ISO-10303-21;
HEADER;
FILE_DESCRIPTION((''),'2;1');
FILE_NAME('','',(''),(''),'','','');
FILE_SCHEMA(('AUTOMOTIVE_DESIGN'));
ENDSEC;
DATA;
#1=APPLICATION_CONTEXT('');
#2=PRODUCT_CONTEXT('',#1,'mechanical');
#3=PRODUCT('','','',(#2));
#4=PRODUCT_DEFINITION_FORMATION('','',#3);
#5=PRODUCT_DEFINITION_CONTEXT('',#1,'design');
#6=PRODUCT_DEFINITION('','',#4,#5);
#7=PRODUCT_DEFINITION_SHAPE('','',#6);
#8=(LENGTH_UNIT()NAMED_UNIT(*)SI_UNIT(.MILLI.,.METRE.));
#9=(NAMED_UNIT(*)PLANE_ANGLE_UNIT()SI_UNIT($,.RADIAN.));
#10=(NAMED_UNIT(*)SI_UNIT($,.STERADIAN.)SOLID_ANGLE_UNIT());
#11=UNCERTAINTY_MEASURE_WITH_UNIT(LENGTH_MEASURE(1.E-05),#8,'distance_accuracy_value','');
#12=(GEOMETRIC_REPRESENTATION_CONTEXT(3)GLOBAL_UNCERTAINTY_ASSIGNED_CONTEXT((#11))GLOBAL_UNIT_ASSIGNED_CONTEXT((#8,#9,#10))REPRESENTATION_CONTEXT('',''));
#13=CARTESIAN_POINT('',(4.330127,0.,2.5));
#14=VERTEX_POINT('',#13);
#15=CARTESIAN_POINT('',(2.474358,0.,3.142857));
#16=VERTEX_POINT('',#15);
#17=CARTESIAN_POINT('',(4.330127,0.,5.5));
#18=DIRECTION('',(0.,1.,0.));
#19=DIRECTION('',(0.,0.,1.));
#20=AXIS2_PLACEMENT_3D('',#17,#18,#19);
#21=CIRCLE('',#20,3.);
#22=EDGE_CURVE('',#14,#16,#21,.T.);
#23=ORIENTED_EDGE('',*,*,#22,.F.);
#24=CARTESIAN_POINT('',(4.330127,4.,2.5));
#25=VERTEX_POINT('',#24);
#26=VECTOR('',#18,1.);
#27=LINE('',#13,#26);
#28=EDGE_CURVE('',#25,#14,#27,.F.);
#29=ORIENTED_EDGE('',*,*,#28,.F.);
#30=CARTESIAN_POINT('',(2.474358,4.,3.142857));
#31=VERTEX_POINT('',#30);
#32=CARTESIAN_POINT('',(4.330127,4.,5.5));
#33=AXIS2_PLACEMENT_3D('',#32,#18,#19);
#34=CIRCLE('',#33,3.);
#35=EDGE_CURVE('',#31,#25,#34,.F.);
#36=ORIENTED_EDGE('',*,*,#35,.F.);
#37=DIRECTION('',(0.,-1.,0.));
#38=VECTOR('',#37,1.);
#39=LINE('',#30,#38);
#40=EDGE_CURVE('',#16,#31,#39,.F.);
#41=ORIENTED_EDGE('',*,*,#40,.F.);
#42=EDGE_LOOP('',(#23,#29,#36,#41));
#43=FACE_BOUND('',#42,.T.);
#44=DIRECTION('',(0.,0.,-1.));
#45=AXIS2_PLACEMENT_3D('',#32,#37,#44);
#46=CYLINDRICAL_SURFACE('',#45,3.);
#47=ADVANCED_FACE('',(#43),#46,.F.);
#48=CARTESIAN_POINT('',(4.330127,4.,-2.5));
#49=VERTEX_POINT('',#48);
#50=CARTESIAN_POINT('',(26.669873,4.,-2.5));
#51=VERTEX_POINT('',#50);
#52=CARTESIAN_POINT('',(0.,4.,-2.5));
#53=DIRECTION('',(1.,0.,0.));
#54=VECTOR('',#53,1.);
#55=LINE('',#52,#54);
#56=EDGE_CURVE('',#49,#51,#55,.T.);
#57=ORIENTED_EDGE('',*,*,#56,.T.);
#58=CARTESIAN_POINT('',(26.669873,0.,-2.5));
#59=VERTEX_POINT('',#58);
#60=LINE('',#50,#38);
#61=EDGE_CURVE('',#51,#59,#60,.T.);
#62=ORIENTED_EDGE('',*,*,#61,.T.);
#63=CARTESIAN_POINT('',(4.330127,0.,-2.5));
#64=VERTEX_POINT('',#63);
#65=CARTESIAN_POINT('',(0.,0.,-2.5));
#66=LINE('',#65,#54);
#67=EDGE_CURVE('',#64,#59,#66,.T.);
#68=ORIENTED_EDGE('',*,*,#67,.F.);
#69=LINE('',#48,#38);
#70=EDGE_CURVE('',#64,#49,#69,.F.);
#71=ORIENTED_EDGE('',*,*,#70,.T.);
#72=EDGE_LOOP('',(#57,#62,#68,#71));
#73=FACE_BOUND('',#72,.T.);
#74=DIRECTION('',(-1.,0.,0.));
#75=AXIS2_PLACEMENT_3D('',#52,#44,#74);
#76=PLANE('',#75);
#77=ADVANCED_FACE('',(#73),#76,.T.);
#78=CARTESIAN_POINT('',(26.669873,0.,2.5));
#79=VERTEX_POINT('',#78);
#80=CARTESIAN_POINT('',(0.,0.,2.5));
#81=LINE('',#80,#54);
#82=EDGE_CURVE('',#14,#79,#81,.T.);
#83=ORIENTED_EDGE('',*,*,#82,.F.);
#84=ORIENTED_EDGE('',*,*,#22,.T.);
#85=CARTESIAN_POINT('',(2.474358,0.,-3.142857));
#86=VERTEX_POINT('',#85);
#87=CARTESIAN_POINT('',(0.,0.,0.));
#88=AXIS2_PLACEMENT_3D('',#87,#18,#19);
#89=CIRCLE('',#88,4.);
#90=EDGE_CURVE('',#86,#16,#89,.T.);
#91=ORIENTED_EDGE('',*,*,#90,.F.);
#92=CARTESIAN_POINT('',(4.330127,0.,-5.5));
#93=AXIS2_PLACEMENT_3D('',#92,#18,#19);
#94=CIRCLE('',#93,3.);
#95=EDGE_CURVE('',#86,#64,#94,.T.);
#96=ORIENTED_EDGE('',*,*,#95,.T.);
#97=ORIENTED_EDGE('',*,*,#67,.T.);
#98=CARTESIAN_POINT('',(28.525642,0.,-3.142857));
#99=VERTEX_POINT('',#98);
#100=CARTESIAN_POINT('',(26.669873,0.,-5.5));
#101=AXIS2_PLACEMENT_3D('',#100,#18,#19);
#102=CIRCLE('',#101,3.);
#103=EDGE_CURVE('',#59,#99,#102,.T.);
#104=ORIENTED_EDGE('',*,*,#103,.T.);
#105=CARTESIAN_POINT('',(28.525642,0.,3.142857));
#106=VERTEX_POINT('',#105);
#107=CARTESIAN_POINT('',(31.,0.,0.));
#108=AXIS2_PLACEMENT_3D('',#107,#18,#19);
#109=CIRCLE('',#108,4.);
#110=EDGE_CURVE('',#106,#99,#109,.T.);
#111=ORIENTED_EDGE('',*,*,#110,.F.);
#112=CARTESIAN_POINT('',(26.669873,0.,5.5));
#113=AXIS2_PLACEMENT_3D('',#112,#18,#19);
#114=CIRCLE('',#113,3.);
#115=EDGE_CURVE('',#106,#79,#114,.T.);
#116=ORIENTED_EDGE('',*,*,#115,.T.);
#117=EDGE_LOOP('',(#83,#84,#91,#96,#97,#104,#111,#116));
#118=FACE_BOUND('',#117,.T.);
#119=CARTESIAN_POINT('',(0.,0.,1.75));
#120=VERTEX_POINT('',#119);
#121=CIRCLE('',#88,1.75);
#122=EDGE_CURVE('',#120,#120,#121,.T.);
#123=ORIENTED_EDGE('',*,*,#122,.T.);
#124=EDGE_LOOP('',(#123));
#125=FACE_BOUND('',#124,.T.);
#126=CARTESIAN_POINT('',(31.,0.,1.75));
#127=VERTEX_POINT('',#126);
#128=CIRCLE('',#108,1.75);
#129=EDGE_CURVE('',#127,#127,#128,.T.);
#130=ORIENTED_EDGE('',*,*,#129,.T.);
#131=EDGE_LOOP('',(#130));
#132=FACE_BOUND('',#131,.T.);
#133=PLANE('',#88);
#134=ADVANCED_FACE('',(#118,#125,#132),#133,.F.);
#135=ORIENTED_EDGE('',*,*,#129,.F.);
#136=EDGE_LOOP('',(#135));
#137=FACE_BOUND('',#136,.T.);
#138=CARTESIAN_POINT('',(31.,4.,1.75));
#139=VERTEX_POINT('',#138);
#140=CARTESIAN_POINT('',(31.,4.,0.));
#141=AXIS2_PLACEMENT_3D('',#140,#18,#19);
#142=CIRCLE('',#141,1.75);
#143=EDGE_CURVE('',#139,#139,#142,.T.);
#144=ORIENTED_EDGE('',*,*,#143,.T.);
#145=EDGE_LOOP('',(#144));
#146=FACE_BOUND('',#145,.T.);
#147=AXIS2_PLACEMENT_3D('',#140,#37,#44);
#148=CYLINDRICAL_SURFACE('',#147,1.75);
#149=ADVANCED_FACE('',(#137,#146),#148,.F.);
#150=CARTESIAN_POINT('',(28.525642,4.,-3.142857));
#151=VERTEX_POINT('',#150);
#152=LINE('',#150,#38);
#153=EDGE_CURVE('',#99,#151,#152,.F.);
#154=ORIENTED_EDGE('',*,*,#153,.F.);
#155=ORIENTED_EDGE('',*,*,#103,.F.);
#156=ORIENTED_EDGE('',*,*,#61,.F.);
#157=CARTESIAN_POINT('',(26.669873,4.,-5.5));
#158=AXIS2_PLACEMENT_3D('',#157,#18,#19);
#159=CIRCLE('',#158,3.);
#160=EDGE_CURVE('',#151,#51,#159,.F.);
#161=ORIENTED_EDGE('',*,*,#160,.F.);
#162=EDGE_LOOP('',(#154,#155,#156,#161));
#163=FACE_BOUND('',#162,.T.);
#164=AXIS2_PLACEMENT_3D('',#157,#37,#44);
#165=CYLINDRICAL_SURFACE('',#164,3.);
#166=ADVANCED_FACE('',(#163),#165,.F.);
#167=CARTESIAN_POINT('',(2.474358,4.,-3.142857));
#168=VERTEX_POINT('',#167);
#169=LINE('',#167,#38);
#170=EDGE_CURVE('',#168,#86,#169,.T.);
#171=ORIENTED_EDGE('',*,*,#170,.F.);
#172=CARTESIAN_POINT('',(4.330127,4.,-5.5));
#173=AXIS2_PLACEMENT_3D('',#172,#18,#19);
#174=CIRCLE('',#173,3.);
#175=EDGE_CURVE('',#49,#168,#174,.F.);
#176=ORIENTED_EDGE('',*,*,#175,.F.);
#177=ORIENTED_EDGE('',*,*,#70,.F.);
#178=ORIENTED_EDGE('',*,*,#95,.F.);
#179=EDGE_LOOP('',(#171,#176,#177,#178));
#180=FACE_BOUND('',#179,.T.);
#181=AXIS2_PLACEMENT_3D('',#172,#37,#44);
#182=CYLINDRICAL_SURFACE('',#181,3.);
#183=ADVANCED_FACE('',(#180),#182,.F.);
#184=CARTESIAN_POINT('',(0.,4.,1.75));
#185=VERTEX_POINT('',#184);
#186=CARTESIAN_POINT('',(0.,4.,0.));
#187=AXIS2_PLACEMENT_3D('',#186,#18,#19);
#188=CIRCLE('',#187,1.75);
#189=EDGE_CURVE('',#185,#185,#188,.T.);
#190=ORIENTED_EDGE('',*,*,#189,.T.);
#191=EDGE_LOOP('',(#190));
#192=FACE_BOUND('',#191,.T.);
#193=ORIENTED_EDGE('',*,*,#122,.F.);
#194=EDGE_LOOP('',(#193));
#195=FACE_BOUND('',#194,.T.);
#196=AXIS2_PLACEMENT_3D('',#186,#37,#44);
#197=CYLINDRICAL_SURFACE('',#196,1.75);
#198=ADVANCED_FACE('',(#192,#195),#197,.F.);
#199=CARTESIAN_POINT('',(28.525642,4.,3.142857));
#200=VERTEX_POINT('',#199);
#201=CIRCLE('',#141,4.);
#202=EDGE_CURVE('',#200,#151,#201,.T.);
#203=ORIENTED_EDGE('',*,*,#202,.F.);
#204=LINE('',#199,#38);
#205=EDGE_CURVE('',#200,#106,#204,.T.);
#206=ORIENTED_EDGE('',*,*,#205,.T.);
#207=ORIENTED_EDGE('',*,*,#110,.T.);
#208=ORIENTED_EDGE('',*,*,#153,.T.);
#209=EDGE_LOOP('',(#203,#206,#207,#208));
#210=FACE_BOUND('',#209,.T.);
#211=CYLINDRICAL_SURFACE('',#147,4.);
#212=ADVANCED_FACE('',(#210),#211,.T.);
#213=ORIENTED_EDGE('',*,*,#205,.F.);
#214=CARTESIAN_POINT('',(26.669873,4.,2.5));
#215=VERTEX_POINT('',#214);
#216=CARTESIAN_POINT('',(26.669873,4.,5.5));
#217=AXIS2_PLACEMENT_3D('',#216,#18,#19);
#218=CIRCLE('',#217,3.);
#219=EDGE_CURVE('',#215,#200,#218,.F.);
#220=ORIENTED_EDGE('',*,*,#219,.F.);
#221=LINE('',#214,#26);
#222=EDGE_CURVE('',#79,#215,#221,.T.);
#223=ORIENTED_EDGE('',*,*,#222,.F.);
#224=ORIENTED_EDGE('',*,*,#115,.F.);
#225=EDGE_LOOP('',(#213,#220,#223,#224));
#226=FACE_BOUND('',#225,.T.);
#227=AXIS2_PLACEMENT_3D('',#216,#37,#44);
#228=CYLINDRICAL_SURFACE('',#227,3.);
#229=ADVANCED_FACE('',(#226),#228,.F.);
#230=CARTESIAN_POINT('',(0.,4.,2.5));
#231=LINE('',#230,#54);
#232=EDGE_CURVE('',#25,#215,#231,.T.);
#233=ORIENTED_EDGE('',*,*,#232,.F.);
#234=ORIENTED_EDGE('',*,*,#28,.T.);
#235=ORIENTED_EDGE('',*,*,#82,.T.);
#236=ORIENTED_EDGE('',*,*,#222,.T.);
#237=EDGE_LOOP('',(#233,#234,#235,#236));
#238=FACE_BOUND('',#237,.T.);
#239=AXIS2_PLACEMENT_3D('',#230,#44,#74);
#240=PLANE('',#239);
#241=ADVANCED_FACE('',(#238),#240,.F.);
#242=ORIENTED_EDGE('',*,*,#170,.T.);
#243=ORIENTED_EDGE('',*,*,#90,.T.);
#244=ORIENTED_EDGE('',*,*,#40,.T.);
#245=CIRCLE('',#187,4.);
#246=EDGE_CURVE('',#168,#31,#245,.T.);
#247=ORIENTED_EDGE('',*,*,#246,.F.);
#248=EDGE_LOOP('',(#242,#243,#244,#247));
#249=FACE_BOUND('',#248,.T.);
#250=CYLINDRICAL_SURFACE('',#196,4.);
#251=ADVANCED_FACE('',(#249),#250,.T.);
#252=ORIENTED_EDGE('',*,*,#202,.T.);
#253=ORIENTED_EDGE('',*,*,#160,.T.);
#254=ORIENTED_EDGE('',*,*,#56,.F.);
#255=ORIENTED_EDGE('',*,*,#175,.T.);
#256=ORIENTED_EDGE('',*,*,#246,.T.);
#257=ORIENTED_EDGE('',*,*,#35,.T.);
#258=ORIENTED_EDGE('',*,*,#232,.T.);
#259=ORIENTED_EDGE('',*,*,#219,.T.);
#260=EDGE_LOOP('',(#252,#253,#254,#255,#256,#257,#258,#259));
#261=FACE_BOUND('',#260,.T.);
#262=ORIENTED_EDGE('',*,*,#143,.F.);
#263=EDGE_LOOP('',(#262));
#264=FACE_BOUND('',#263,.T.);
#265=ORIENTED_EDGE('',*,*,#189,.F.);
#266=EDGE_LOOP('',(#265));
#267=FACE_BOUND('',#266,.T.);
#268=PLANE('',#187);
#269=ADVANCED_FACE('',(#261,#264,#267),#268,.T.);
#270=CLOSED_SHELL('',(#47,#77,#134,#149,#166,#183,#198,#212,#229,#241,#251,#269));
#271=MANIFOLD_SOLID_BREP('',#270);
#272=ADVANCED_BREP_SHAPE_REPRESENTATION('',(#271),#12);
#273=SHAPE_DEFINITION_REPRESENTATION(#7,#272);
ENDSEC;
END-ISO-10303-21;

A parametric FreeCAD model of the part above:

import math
import FreeCAD as App
import Part
import Sketcher

V = App.Vector
Q = App.Units.Quantity


def edges_at(feature, points):
    """Names of the edges that pass closest to the given points."""
    edges = feature.Shape.Edges
    near = lambda p: min(range(len(edges)), key=lambda i: edges[i].distToShape(Part.Vertex(*p))[0])
    return sorted({f"Edge{near(p) + 1}" for p in points})

doc = App.newDocument("Part")
params = doc.addObject("Spreadsheet::Sheet", "Params")
for row, (alias, value) in enumerate([
    ("sketch1_radius", "4 mm"),
    ("sketch1_diameter", "3.5 mm"),
    ("pad1_length", "4 mm"),
    ("fillet_radius", "3 mm"),
], start=1):
    params.set(f"A{row}", alias)
    params.set(f"B{row}", "=" + value)
    params.setAlias(f"B{row}", alias)

body = doc.addObject("PartDesign::Body", "Body")

sketch1 = doc.addObject("Sketcher::SketchObject", "Sketch")
body.addObject(sketch1)
sketch1.AttachmentSupport = (doc.XZ_Plane, [""])
sketch1.MapMode = "FlatFace"
sketch1.addGeometry(Part.LineSegment(V(27.877501, -2.5, 0), V(3.122499, -2.5, 0)), False)
sketch1.addGeometry(Part.ArcOfCircle(Part.Circle(V(0, 0, 0), V(0, 0, 1), 4), math.radians(38.682187), math.radians(321.317813)), False)
sketch1.addGeometry(Part.LineSegment(V(3.122499, 2.5, 0), V(27.877501, 2.5, 0)), False)
sketch1.addGeometry(Part.ArcOfCircle(Part.Circle(V(31, 0, 0), V(0, 0, 1), 4), math.radians(-141.317813), math.radians(141.317813)), False)
sketch1.addGeometry(Part.Circle(V(0, 0, 0), V(0, 0, 1), 1.75), False)
sketch1.addGeometry(Part.Circle(V(31, 0, 0), V(0, 0, 1), 1.75), False)
sketch1.addConstraint(Sketcher.Constraint("Coincident", 0, 2, 1, 2))
sketch1.addConstraint(Sketcher.Constraint("Coincident", 1, 1, 2, 1))
sketch1.addConstraint(Sketcher.Constraint("Coincident", 2, 2, 3, 2))
sketch1.addConstraint(Sketcher.Constraint("Coincident", 3, 1, 0, 1))
sketch1.addConstraint(Sketcher.Constraint("Horizontal", 0))
sketch1.addConstraint(Sketcher.Constraint("Horizontal", 2))
sketch1.addConstraint(Sketcher.Constraint("Coincident", 1, 3, -1, 1))
sketch1.addConstraint(Sketcher.Constraint("Coincident", 4, 3, -1, 1))
sketch1.addConstraint(Sketcher.Constraint("Coincident", 5, 3, 3, 3))
sketch1.addConstraint(Sketcher.Constraint("Equal", 1, 3))
sketch1.addConstraint(Sketcher.Constraint("Equal", 4, 5))
sketch1.addConstraint(Sketcher.Constraint("Symmetric", 2, 2, 3, 1, -1))
sketch1.addConstraint(Sketcher.Constraint("Radius", 1, Q("4 mm")))
sketch1.addConstraint(Sketcher.Constraint("Diameter", 4, Q("3.5 mm")))
sketch1.addConstraint(Sketcher.Constraint("DistanceX", -1, 1, 3, 3, Q("31 mm")))
sketch1.addConstraint(Sketcher.Constraint("DistanceY", 0, 2, 1, 1, Q("5 mm")))
sketch1.setExpression("Constraints[12]", "Params.sketch1_radius")
sketch1.setExpression("Constraints[13]", "Params.sketch1_diameter")
pad1 = doc.addObject("PartDesign::Pad", "Pad")
body.addObject(pad1)
pad1.Profile = sketch1
pad1.setExpression("Length", "Params.pad1_length")
pad1.Reversed = True
doc.recompute()

fillet = doc.addObject("PartDesign::Fillet", "Fillet")
body.addObject(fillet)
fillet.Base = (pad1, edges_at(pad1, [
    (27.878, 2, 2.5),
    (3.122, 2, 2.5),
    (3.122, 2, -2.5),
    (27.878, 2, -2.5),
]))
fillet.setExpression("Radius", "Params.fillet_radius")

doc.recompute()
